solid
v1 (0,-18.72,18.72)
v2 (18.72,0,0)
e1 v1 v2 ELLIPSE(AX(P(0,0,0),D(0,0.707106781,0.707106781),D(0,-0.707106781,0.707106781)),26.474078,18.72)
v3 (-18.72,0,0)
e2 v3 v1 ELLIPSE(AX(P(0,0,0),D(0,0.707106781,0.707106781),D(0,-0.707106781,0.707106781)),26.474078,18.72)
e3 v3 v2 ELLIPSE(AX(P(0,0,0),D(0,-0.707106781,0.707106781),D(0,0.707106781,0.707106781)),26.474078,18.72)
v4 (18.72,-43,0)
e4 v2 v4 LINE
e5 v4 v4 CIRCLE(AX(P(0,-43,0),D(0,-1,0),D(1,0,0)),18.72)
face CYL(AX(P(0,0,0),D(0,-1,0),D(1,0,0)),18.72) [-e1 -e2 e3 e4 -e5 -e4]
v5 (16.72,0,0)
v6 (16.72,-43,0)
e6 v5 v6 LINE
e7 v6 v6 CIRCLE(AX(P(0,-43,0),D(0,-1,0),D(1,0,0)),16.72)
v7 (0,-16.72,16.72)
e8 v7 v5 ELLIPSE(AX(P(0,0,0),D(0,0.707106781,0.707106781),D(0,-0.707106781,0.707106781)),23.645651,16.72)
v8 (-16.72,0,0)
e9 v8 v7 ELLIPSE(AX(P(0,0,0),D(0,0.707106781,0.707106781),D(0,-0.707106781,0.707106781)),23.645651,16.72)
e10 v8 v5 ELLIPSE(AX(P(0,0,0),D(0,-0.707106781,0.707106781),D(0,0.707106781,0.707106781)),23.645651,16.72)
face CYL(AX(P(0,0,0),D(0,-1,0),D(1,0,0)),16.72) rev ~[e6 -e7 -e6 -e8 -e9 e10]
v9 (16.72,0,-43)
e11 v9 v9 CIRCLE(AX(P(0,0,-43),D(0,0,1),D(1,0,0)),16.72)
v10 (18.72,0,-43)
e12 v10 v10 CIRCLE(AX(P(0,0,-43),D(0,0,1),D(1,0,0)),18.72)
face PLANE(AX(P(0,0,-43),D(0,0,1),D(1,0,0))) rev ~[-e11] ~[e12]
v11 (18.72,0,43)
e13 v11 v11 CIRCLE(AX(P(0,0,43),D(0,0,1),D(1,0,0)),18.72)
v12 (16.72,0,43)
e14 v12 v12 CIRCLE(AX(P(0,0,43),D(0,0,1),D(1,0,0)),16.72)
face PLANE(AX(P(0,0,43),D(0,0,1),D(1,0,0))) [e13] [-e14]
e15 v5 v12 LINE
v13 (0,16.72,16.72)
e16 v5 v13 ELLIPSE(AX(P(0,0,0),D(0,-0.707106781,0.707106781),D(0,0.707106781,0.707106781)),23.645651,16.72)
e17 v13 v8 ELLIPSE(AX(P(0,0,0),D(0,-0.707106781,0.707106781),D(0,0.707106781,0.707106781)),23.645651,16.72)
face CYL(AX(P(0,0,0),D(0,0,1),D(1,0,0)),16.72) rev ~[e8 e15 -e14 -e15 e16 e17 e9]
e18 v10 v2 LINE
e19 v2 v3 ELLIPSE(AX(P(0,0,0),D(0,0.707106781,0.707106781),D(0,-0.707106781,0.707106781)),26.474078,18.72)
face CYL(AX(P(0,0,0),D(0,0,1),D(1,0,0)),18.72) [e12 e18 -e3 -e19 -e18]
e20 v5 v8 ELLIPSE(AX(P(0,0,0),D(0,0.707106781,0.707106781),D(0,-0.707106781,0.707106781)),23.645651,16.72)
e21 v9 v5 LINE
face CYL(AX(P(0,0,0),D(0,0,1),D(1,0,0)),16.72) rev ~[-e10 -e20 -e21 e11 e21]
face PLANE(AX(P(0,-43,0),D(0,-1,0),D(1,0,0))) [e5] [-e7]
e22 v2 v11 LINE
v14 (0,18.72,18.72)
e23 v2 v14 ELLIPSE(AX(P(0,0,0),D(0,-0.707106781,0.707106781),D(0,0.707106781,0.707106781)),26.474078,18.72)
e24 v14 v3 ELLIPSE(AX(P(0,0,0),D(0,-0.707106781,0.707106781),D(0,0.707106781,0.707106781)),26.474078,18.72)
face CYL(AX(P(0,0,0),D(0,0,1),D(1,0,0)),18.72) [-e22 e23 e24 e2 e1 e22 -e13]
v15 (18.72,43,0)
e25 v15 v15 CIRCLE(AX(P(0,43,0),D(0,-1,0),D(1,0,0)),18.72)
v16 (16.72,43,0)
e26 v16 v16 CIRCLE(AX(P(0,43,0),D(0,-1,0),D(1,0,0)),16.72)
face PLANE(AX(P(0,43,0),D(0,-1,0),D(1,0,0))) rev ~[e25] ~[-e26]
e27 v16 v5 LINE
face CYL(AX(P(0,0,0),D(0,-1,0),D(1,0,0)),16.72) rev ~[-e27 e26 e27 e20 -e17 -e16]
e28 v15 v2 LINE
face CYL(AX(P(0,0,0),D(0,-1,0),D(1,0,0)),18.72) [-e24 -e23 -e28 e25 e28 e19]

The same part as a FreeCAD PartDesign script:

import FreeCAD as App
import Part
import Sketcher
from FreeCAD import Vector
Q = App.Units.Quantity


def faces_at(feature, points):
    """Names of the faces that lie closest to the given points."""
    faces = feature.Shape.Faces
    near = lambda p: min(range(len(faces)), key=lambda i: faces[i].distToShape(Part.Vertex(*p))[0])
    return sorted({f"Face{near(p) + 1}" for p in points})

doc = App.newDocument("Part")
body = doc.addObject("PartDesign::Body", "Body")

# Sketch on XY plane
sketch1 = body.newObject("Sketcher::SketchObject", "Sketch")
sketch1.AttachmentSupport = (doc.getObject("XY_Plane"), [""])
sketch1.MapMode = "FlatFace"
sketch1.addGeometry(Part.Circle(Vector(0, 0, 0), Vector(0, 0, 1), 16.72), False)
sketch1.addConstraint([
    Sketcher.Constraint("Coincident", 0, 3, -1, 1),
    Sketcher.Constraint("Diameter", 0, Q("33.44 mm")),
])
pad1 = body.newObject("PartDesign::Pad", "Pad")
pad1.Profile = sketch1
pad1.Length = 86
pad1.Midplane = True

# Sketch on XZ plane
sketch2 = body.newObject("Sketcher::SketchObject", "Sketch001")
sketch2.AttachmentSupport = (doc.getObject("XZ_Plane"), [""])
sketch2.MapMode = "FlatFace"
sketch2.addGeometry(Part.Circle(Vector(0, 0, 0), Vector(0, 0, 1), 16.72), False)
sketch2.addConstraint([
    Sketcher.Constraint("Coincident", 0, 3, -1, 1),
    Sketcher.Constraint("Diameter", 0, Q("33.44 mm")),
])
pad2 = body.newObject("PartDesign::Pad", "Pad001")
pad2.Profile = sketch2
pad2.Length = 86
pad2.Midplane = True
doc.recompute()

thickness = body.newObject("PartDesign::Thickness", "Thickness")
thickness.Base = (pad2, faces_at(pad2, [
    (0, 0, -43),
    (0, -43, 0),
    (0, 0, 43),
    (0, 43, 0),
]))
thickness.Value = 2
thickness.Reversed = False
thickness.Join = "Arc"

doc.recompute()
